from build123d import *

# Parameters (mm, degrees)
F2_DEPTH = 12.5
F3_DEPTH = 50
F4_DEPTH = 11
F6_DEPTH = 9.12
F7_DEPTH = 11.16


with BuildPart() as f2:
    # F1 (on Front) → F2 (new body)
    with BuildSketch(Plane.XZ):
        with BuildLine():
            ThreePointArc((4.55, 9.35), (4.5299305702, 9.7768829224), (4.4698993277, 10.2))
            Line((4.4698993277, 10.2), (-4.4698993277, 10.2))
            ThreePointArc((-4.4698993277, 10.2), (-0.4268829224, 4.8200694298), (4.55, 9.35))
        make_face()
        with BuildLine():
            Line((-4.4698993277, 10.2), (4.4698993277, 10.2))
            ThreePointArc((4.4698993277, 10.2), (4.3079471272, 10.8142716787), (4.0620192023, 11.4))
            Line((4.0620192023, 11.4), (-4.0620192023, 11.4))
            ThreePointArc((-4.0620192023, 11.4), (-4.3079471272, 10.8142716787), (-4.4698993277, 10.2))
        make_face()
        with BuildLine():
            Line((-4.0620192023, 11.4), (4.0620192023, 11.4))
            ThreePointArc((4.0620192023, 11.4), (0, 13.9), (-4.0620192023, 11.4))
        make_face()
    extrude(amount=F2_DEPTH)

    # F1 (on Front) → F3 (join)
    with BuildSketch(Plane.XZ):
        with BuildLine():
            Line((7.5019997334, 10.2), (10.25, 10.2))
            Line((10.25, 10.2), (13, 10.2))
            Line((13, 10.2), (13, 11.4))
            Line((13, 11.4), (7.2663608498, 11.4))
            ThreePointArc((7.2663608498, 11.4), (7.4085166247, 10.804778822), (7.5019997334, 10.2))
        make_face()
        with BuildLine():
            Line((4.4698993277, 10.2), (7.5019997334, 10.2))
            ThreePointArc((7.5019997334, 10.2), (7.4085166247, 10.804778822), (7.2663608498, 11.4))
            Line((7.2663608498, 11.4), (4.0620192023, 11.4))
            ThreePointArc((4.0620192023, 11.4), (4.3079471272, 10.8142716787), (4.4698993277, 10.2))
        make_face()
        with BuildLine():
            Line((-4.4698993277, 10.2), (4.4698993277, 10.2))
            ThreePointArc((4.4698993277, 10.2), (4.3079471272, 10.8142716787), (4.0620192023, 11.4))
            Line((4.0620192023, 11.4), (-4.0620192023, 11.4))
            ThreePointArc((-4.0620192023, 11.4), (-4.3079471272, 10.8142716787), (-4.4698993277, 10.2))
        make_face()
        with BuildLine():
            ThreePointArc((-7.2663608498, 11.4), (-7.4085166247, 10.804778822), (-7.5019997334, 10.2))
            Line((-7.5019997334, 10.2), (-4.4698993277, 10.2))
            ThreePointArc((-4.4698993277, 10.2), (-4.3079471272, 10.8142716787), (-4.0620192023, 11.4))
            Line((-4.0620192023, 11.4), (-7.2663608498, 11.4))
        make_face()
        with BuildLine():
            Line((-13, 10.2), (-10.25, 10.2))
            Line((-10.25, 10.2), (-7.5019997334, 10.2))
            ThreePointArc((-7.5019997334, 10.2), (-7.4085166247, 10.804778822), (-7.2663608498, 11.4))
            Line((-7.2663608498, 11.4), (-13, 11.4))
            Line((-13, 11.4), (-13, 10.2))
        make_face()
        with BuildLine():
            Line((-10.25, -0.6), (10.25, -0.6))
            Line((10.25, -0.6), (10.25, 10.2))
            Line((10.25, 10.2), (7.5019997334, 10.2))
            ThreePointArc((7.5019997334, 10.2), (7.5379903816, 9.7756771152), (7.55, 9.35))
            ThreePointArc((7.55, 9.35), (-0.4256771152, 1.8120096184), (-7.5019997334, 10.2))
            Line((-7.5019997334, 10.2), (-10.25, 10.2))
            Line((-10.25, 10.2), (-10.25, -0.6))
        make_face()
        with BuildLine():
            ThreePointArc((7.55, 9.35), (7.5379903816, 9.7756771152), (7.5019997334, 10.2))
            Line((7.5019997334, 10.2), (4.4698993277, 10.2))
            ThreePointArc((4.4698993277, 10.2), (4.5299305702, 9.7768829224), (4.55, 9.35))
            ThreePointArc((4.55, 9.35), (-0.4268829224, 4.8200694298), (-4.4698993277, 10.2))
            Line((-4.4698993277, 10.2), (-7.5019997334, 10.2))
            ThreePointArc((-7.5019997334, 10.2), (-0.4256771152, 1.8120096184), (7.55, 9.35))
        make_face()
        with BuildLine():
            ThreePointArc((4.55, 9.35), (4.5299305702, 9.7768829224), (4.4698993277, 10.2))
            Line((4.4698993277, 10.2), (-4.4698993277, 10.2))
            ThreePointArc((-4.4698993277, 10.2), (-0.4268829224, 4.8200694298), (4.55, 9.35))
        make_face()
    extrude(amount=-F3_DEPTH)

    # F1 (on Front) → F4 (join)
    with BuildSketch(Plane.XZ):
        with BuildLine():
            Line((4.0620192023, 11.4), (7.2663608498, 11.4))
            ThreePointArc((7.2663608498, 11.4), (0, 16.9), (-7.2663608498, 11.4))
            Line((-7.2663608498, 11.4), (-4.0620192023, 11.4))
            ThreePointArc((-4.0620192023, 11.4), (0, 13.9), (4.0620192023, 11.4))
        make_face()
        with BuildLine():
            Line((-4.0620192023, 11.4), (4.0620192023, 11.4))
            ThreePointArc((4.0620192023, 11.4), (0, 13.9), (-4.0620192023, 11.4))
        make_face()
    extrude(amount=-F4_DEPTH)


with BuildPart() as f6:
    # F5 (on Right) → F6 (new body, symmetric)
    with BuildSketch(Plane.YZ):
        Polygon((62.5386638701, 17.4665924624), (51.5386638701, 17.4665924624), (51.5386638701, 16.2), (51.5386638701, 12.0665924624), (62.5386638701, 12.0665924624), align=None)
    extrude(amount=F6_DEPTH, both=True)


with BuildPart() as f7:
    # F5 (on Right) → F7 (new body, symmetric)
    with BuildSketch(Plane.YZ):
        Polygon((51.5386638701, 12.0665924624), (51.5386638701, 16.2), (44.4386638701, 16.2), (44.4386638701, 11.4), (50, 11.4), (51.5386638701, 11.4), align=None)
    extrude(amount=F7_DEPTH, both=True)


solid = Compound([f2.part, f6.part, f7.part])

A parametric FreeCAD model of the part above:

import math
import FreeCAD as App
import Part
import Sketcher

doc = App.newDocument("Part")
params = doc.addObject("Spreadsheet::Sheet", "Params")
for row, (alias, value) in enumerate([
    ("sketch1_radius", "4.55 mm"),
    ("pad1_length", "12.5 mm"),
    ("sketch2_width", "26 mm"),
    ("sketch2_width2", "20.5 mm"),
    ("sketch2_height", "1.2 mm"),
    ("sketch2_height2", "10.8 mm"),
    ("pad2_length", "50 mm"),
    ("sketch3_radius", "7.55 mm"),
    ("pad3_length", "11 mm"),
    ("sketch4_width", "11 mm"),
    ("sketch4_height", "5.4 mm"),
    ("pad4_length", "18.24 mm"),
    ("sketch5_width", "7.1 mm"),
    ("sketch5_height", "4.8 mm"),
    ("pad5_length", "22.32 mm"),
], start=1):
    params.set(f"A{row}", alias)
    params.set(f"B{row}", "=" + value)
    params.setAlias(f"B{row}", alias)

body = doc.addObject("PartDesign::Body", "Body")

# Sketch on XZ plane
sketch1 = body.newObject("Sketcher::SketchObject", "Sketch")
sketch1.AttachmentSupport = (doc.getObject("XZ_Plane"), [""])
sketch1.MapMode = "FlatFace"
sketch1.addGeometry([
    Part.ArcOfCircle(Part.Circle(App.Vector(0, 9.35, 0), App.Vector(0, 0, 1), 4.55), math.radians(0), math.radians(10.766864)),  # 0
    Part.ArcOfCircle(Part.Circle(App.Vector(0, 9.35, 0), App.Vector(0, 0, 1), 4.55), math.radians(10.766864), math.radians(26.778942)),  # 1
    Part.ArcOfCircle(Part.Circle(App.Vector(0, 9.35, 0), App.Vector(0, 0, 1), 4.55), math.radians(26.778942), math.radians(153.221058)),  # 2
    Part.ArcOfCircle(Part.Circle(App.Vector(0, 9.35, 0), App.Vector(0, 0, 1), 4.55), math.radians(153.221058), math.radians(169.233136)),  # 3
    Part.ArcOfCircle(Part.Circle(App.Vector(0, 9.35, 0), App.Vector(0, 0, 1), 4.55), math.radians(169.233136), math.radians(360)),  # 4
], False)
sketch1.addConstraint([
    Sketcher.Constraint("Tangent", 0, 2, 1, 1),
    Sketcher.Constraint("Tangent", 1, 2, 2, 1),
    Sketcher.Constraint("Tangent", 2, 2, 3, 1),
    Sketcher.Constraint("Tangent", 3, 2, 4, 1),
    Sketcher.Constraint("Tangent", 4, 2, 0, 1),
    Sketcher.Constraint("Coincident", 2, 3, 0, 3),
    Sketcher.Constraint("Symmetric", 1, 2, 2, 2, -2),
    Sketcher.Constraint("Horizontal", 0, 2, 3, 2),
    Sketcher.Constraint("Horizontal", 3, 3, 4, 2),
    Sketcher.Constraint("Radius", 0, 4.55),
    Sketcher.Constraint("DistanceY", -1, 1, 0, 2, 10.2),
    Sketcher.Constraint("DistanceY", -1, 1, 1, 2, 11.4),
    Sketcher.Constraint("DistanceY", -1, 1, 0, 3, 9.35),
])
sketch1.setExpression("Constraints[9]", "Params.sketch1_radius")
pad1 = body.newObject("PartDesign::Pad", "Pad")
pad1.Profile = sketch1
pad1.setExpression("Length", "Params.pad1_length")

# Sketch on XZ plane
sketch2 = body.newObject("Sketcher::SketchObject", "Sketch001")
sketch2.AttachmentSupport = (doc.getObject("XZ_Plane"), [""])
sketch2.MapMode = "FlatFace"
sketch2.addGeometry([
    Part.LineSegment(App.Vector(13, 10.2, 0), App.Vector(13, 11.4, 0)),  # 0
    Part.LineSegment(App.Vector(13, 11.4, 0), App.Vector(-13, 11.4, 0)),  # 1
    Part.LineSegment(App.Vector(-13, 11.4, 0), App.Vector(-13, 10.2, 0)),  # 2
    Part.LineSegment(App.Vector(-13, 10.2, 0), App.Vector(-10.25, 10.2, 0)),  # 3
    Part.LineSegment(App.Vector(-10.25, 10.2, 0), App.Vector(-10.25, -0.6, 0)),  # 4
    Part.LineSegment(App.Vector(-10.25, -0.6, 0), App.Vector(10.25, -0.6, 0)),  # 5
    Part.LineSegment(App.Vector(10.25, -0.6, 0), App.Vector(10.25, 10.2, 0)),  # 6
    Part.LineSegment(App.Vector(10.25, 10.2, 0), App.Vector(13, 10.2, 0)),  # 7
], False)
sketch2.addConstraint([
    Sketcher.Constraint("Coincident", 0, 2, 1, 1),
    Sketcher.Constraint("Coincident", 1, 2, 2, 1),
    Sketcher.Constraint("Coincident", 2, 2, 3, 1),
    Sketcher.Constraint("Coincident", 3, 2, 4, 1),
    Sketcher.Constraint("Coincident", 4, 2, 5, 1),
    Sketcher.Constraint("Coincident", 5, 2, 6, 1),
    Sketcher.Constraint("Coincident", 6, 2, 7, 1),
    Sketcher.Constraint("Coincident", 7, 2, 0, 1),
    Sketcher.Constraint("Vertical", 0),
    Sketcher.Constraint("Horizontal", 1),
    Sketcher.Constraint("Vertical", 2),
    Sketcher.Constraint("Horizontal", 3),
    Sketcher.Constraint("Vertical", 4),
    Sketcher.Constraint("Horizontal", 5),
    Sketcher.Constraint("Vertical", 6),
    Sketcher.Constraint("Horizontal", 7),
    Sketcher.Constraint("Symmetric", 3, 2, 6, 2, -2),
    Sketcher.Constraint("Equal", 3, 7),
    Sketcher.Constraint("DistanceX", 1, 2, 1, 1, 26.0),
    Sketcher.Constraint("DistanceX", 5, 1, 5, 2, 20.5),
    Sketcher.Constraint("DistanceY", 0, 1, 0, 2, 1.2),
    Sketcher.Constraint("DistanceY", 4, 2, 4, 1, 10.8),
    Sketcher.Constraint("DistanceY", -1, 1, 0, 2, 11.4),
])
sketch2.setExpression("Constraints[18]", "Params.sketch2_width")
sketch2.setExpression("Constraints[19]", "Params.sketch2_width2")
sketch2.setExpression("Constraints[20]", "Params.sketch2_height")
sketch2.setExpression("Constraints[21]", "Params.sketch2_height2")
pad2 = body.newObject("PartDesign::Pad", "Pad001")
pad2.Profile = sketch2
pad2.setExpression("Length", "Params.pad2_length")
pad2.Reversed = True

# Sketch on XZ plane
sketch3 = body.newObject("Sketcher::SketchObject", "Sketch002")
sketch3.AttachmentSupport = (doc.getObject("XZ_Plane"), [""])
sketch3.MapMode = "FlatFace"
sketch3.addGeometry([
    Part.ArcOfCircle(Part.Circle(App.Vector(0, 9.35, 0), App.Vector(0, 0, 1), 7.55), math.radians(15.754925), math.radians(164.245075)),
    Part.LineSegment(App.Vector(-7.266361, 11.4, 0), App.Vector(7.266361, 11.4, 0)),
], False)
sketch3.addConstraint([
    Sketcher.Constraint("Coincident", 0, 1, 1, 2),
    Sketcher.Constraint("Coincident", 1, 1, 0, 2),
    Sketcher.Constraint("Horizontal", 1),
    Sketcher.Constraint("PointOnObject", 0, 3, -2),
    Sketcher.Constraint("Radius", 0, 7.55),
    Sketcher.Constraint("DistanceY", -1, 1, 0, 1, 11.4),
    Sketcher.Constraint("DistanceY", -1, 1, 0, 3, 9.35),
])
sketch3.setExpression("Constraints[4]", "Params.sketch3_radius")
pad3 = body.newObject("PartDesign::Pad", "Pad002")
pad3.Profile = sketch3
pad3.setExpression("Length", "Params.pad3_length")
pad3.Reversed = True
body2 = doc.addObject("PartDesign::Body", "Body001")

# Sketch on YZ plane
sketch4 = body2.newObject("Sketcher::SketchObject", "Sketch003")
sketch4.AttachmentSupport = (doc.getObject("YZ_Plane001"), [""])
sketch4.MapMode = "FlatFace"
sketch4.addGeometry([
    Part.LineSegment(App.Vector(62.538664, 17.466592, 0), App.Vector(51.538664, 17.466592, 0)),
    Part.LineSegment(App.Vector(51.538664, 17.466592, 0), App.Vector(51.538664, 12.066592, 0)),
    Part.LineSegment(App.Vector(51.538664, 12.066592, 0), App.Vector(62.538664, 12.066592, 0)),
    Part.LineSegment(App.Vector(62.538664, 12.066592, 0), App.Vector(62.538664, 17.466592, 0)),
], False)
sketch4.addConstraint([
    Sketcher.Constraint("Coincident", 0, 2, 1, 1),
    Sketcher.Constraint("Coincident", 1, 2, 2, 1),
    Sketcher.Constraint("Coincident", 2, 2, 3, 1),
    Sketcher.Constraint("Coincident", 3, 2, 0, 1),
    Sketcher.Constraint("Horizontal", 0),
    Sketcher.Constraint("Vertical", 1),
    Sketcher.Constraint("Horizontal", 2),
    Sketcher.Constraint("Vertical", 3),
    Sketcher.Constraint("DistanceX", 0, 2, 0, 1, 11.0),
    Sketcher.Constraint("DistanceY", 1, 2, 1, 1, 5.4),
    Sketcher.Constraint("DistanceX", -1, 1, 0, 2, 51.538664),
    Sketcher.Constraint("DistanceY", -1, 1, 0, 2, 17.466592),
])
sketch4.setExpression("Constraints[8]", "Params.sketch4_width")
sketch4.setExpression("Constraints[9]", "Params.sketch4_height")
pad4 = body2.newObject("PartDesign::Pad", "Pad003")
pad4.Profile = sketch4
pad4.setExpression("Length", "Params.pad4_length")
pad4.Midplane = True
body3 = doc.addObject("PartDesign::Body", "Body002")

# Sketch on YZ plane
sketch5 = body3.newObject("Sketcher::SketchObject", "Sketch004")
sketch5.AttachmentSupport = (doc.getObject("YZ_Plane002"), [""])
sketch5.MapMode = "FlatFace"
sketch5.addGeometry([
    Part.LineSegment(App.Vector(51.538664, 16.2, 0), App.Vector(44.438664, 16.2, 0)),
    Part.LineSegment(App.Vector(44.438664, 16.2, 0), App.Vector(44.438664, 11.4, 0)),
    Part.LineSegment(App.Vector(44.438664, 11.4, 0), App.Vector(51.538664, 11.4, 0)),
    Part.LineSegment(App.Vector(51.538664, 11.4, 0), App.Vector(51.538664, 16.2, 0)),
], False)
sketch5.addConstraint([
    Sketcher.Constraint("Coincident", 0, 2, 1, 1),
    Sketcher.Constraint("Coincident", 1, 2, 2, 1),
    Sketcher.Constraint("Coincident", 2, 2, 3, 1),
    Sketcher.Constraint("Coincident", 3, 2, 0, 1),
    Sketcher.Constraint("Horizontal", 0),
    Sketcher.Constraint("Vertical", 1),
    Sketcher.Constraint("Horizontal", 2),
    Sketcher.Constraint("Vertical", 3),
    Sketcher.Constraint("DistanceX", 0, 2, 0, 1, 7.1),
    Sketcher.Constraint("DistanceY", 1, 2, 1, 1, 4.8),
    Sketcher.Constraint("DistanceY", -1, 1, 0, 2, 16.2),
    Sketcher.Constraint("DistanceX", -1, 1, 0, 2, 44.438664),
])
sketch5.setExpression("Constraints[8]", "Params.sketch5_width")
sketch5.setExpression("Constraints[9]", "Params.sketch5_height")
pad5 = body3.newObject("PartDesign::Pad", "Pad004")
pad5.Profile = sketch5
pad5.setExpression("Length", "Params.pad5_length")
pad5.Midplane = True

doc.recompute()
